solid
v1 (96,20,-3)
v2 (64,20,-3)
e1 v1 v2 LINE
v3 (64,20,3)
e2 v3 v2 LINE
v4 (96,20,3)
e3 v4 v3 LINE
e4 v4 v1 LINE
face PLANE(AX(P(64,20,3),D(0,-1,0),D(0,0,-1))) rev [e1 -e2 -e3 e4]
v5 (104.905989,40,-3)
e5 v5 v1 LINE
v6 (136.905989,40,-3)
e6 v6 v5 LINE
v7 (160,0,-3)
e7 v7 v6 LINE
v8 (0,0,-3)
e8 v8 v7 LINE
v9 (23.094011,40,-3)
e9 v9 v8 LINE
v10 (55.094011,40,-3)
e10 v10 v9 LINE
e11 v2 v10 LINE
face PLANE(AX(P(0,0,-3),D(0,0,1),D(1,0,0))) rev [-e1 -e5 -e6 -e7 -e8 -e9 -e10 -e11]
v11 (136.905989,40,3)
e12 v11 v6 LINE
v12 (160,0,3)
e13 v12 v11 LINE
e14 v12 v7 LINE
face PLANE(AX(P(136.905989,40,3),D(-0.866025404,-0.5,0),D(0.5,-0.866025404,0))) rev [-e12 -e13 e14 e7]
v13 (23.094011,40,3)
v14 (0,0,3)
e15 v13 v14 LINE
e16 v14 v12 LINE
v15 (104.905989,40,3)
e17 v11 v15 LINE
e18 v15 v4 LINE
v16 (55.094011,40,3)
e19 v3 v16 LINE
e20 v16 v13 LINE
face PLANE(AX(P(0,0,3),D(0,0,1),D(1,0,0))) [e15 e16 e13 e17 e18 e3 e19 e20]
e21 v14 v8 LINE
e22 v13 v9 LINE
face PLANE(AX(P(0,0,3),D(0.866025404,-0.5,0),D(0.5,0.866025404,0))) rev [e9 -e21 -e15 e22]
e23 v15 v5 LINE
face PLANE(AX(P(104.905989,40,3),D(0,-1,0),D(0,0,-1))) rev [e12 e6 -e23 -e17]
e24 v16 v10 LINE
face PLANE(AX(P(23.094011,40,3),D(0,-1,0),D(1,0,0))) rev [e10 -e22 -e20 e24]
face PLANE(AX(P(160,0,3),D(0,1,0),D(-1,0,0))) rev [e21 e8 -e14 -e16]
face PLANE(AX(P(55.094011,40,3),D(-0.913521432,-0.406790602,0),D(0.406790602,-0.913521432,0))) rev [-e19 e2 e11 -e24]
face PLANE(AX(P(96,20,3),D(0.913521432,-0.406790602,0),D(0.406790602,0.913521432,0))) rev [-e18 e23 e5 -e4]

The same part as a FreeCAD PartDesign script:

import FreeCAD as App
import Part
import Sketcher
Q = App.Units.Quantity


def add_polygon(sketch, points):
    """Adds a closed chain of lines whose ends are joined by coincident constraints."""
    first, n = sketch.GeometryCount, len(points)
    for a, b in zip(points, points[1:] + points[:1]):
        sketch.addGeometry(Part.LineSegment(App.Vector(*a, 0), App.Vector(*b, 0)), False)
    for i in range(n):
        sketch.addConstraint(Sketcher.Constraint("Coincident", first + i, 2, first + (i + 1) % n, 1))

doc = App.newDocument("Part")
params = doc.addObject("Spreadsheet::Sheet", "Params")
for row, (alias, value) in enumerate([
    ("sketch1_width", "160 mm"),
    ("sketch1_width2", "32 mm"),
    ("pad1_length", "6 mm"),
], start=1):
    params.set(f"A{row}", alias)
    params.set(f"B{row}", "=" + value)
    params.setAlias(f"B{row}", alias)

body = doc.addObject("PartDesign::Body", "Body")

sketch1 = body.newObject("Sketcher::SketchObject", "Sketch")
sketch1.AttachmentSupport = (doc.getObject("XY_Plane"), [""])
sketch1.MapMode = "FlatFace"
add_polygon(sketch1, [(23, 40), (0, 0), (160, 0), (137, 40), (105, 40), (96, 20), (64, 20), (55, 40)])
sketch1.addConstraint([
    Sketcher.Constraint("Horizontal", 1),
    Sketcher.Constraint("Horizontal", 3),
    Sketcher.Constraint("Horizontal", 5),
    Sketcher.Constraint("Horizontal", 7),
    Sketcher.Constraint("Coincident", 0, 2, -1, 1),
    Sketcher.Constraint("Horizontal", 3, 2, 6, 2),
    Sketcher.Constraint("Equal", 3, 5),
    Sketcher.Constraint("Equal", 5, 7),
    Sketcher.Constraint("Equal", 0, 2),
    Sketcher.Constraint("Equal", 4, 6),
    Sketcher.Constraint("DistanceX", 1, 1, 1, 2, 160.0),
    Sketcher.Constraint("DistanceX", 3, 2, 3, 1, 32.0),
    Sketcher.Constraint("Angle", 0, Q("-120 deg")),
    Sketcher.Constraint("DistanceY", -1, 1, 2, 2, 40.0),
    Sketcher.Constraint("DistanceY", -1, 1, 4, 2, 20.0),
])
sketch1.setExpression("Constraints[18]", "Params.sketch1_width")
sketch1.setExpression("Constraints[19]", "Params.sketch1_width2")
pad1 = body.newObject("PartDesign::Pad", "Pad")
pad1.Profile = sketch1
pad1.setExpression("Length", "Params.pad1_length")
pad1.Midplane = True

doc.recompute()
